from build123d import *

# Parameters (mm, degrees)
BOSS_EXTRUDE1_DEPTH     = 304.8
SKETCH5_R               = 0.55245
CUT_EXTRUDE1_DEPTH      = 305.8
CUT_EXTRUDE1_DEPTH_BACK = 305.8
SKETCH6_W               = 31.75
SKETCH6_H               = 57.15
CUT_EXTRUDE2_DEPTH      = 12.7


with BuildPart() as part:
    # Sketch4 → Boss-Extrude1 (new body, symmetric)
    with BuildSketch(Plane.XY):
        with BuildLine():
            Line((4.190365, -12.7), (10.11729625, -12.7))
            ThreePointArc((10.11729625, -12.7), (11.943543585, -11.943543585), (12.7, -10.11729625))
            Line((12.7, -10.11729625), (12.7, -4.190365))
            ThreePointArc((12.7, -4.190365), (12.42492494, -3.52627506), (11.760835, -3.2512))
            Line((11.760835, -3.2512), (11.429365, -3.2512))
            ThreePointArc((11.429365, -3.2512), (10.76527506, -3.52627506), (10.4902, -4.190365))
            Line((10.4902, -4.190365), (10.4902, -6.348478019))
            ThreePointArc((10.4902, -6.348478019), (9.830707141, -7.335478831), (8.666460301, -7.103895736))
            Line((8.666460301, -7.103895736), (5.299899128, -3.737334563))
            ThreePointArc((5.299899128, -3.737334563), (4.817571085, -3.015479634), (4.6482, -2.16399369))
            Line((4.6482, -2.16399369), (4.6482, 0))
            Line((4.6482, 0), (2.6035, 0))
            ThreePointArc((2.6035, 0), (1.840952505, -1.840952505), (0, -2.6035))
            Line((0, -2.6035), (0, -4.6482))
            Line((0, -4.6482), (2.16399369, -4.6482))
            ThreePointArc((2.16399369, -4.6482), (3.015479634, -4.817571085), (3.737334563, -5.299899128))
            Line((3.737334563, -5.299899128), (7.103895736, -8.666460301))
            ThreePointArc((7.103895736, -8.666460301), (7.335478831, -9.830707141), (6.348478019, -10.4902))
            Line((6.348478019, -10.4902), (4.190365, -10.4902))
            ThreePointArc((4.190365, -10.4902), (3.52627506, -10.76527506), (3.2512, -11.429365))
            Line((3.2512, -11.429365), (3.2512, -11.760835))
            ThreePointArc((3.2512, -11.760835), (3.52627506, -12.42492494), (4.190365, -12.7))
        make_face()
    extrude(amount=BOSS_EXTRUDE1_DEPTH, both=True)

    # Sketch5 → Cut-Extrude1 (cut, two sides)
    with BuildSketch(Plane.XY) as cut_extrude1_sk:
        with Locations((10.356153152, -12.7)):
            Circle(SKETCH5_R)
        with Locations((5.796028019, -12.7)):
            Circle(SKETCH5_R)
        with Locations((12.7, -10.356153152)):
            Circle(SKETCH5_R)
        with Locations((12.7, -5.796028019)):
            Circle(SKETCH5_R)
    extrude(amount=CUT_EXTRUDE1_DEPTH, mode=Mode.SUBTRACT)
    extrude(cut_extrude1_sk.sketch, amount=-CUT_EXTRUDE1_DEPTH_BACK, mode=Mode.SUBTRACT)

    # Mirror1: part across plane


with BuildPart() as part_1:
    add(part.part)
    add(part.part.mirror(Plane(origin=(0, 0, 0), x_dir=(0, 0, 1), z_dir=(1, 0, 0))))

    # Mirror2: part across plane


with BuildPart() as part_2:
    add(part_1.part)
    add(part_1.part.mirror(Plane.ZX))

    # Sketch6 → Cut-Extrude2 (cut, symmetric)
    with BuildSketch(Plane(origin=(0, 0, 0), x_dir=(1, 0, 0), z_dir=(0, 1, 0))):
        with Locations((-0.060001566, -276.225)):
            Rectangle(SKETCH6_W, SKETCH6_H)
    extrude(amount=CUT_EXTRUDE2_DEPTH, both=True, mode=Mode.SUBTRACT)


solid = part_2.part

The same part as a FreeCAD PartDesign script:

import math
import FreeCAD as App
import Part
import Sketcher
Q = App.Units.Quantity


def add_polygon(sketch, points):
    """Adds a closed chain of lines whose ends are joined by coincident constraints."""
    first, n = sketch.GeometryCount, len(points)
    for a, b in zip(points, points[1:] + points[:1]):
        sketch.addGeometry(Part.LineSegment(App.Vector(*a, 0), App.Vector(*b, 0)), False)
    for i in range(n):
        sketch.addConstraint(Sketcher.Constraint("Coincident", first + i, 2, first + (i + 1) % n, 1))

doc = App.newDocument("Part")
params = doc.addObject("Spreadsheet::Sheet", "Params")
for row, (alias, value) in enumerate([
    ("pad1_length", "24 in"),
    ("sketch3_width", "1.25 in"),
    ("sketch3_height", "2.25 in"),
    ("pocket2_length", "1 in"),
], start=1):
    params.set(f"A{row}", alias)
    params.set(f"B{row}", "=" + value)
    params.setAlias(f"B{row}", alias)

body = doc.addObject("PartDesign::Body", "Body")

sketch1 = body.newObject("Sketcher::SketchObject", "Sketch")
sketch1.AttachmentSupport = (doc.getObject("XY_Plane"), [""])
sketch1.MapMode = "FlatFace"
sketch1.addGeometry([
    Part.LineSegment(App.Vector(4.19, -12.7, 0), App.Vector(10.12, -12.7, 0)),
    Part.ArcOfCircle(Part.Circle(App.Vector(10.12, -10.12, 0), App.Vector(0, 0, 1), 2.58), math.radians(-90), math.radians(0)),
    Part.LineSegment(App.Vector(12.7, -10.12, 0), App.Vector(12.7, -4.19, 0)),
    Part.ArcOfCircle(Part.Circle(App.Vector(11.76, -4.19, 0), App.Vector(0, 0, 1), 0.94), math.radians(0), math.radians(90)),
    Part.LineSegment(App.Vector(11.76, -3.25, 0), App.Vector(11.43, -3.25, 0)),
    Part.ArcOfCircle(Part.Circle(App.Vector(11.43, -4.19, 0), App.Vector(0, 0, 1), 0.94), math.radians(90), math.radians(180)),
    Part.LineSegment(App.Vector(10.49, -4.19, 0), App.Vector(10.49, -6.35, 0)),
    Part.ArcOfCircle(Part.Circle(App.Vector(9.42, -6.35, 0), App.Vector(0, 0, 1), 1.07), math.radians(-135), math.radians(0)),
    Part.LineSegment(App.Vector(8.67, -7.1, 0), App.Vector(5.3, -3.74, 0)),
    Part.ArcOfCircle(Part.Circle(App.Vector(6.87, -2.16, 0), App.Vector(0, 0, 1), 2.23), math.radians(-180), math.radians(-135)),
    Part.LineSegment(App.Vector(4.65, -2.16, 0), App.Vector(4.65, 0, 0)),
    Part.LineSegment(App.Vector(4.65, 0, 0), App.Vector(2.6, 0, 0)),
    Part.ArcOfCircle(Part.Circle(App.Vector(0, 0, 0), App.Vector(0, 0, 1), 2.6), math.radians(-90), math.radians(0)),
    Part.LineSegment(App.Vector(0, -2.6, 0), App.Vector(0, -4.65, 0)),
    Part.LineSegment(App.Vector(0, -4.65, 0), App.Vector(2.16, -4.65, 0)),
    Part.ArcOfCircle(Part.Circle(App.Vector(2.16, -6.87, 0), App.Vector(0, 0, 1), 2.23), math.radians(45), math.radians(90)),
    Part.LineSegment(App.Vector(3.74, -5.3, 0), App.Vector(7.1, -8.67, 0)),
    Part.ArcOfCircle(Part.Circle(App.Vector(6.35, -9.42, 0), App.Vector(0, 0, 1), 1.07), math.radians(-90), math.radians(45)),
    Part.LineSegment(App.Vector(6.35, -10.49, 0), App.Vector(4.19, -10.49, 0)),
    Part.ArcOfCircle(Part.Circle(App.Vector(4.19, -11.43, 0), App.Vector(0, 0, 1), 0.94), math.radians(90), math.radians(180)),
    Part.LineSegment(App.Vector(3.25, -11.43, 0), App.Vector(3.25, -11.76, 0)),
    Part.ArcOfCircle(Part.Circle(App.Vector(4.19, -11.76, 0), App.Vector(0, 0, 1), 0.94), math.radians(-180), math.radians(-90)),
], False)
sketch1.addConstraint([
    Sketcher.Constraint("Tangent", 0, 2, 1, 1),
    Sketcher.Constraint("Tangent", 1, 2, 2, 1),
    Sketcher.Constraint("Tangent", 2, 2, 3, 1),
    Sketcher.Constraint("Tangent", 3, 2, 4, 1),
    Sketcher.Constraint("Tangent", 4, 2, 5, 1),
    Sketcher.Constraint("Tangent", 5, 2, 6, 1),
    Sketcher.Constraint("Tangent", 6, 2, 7, 2),
    Sketcher.Constraint("Tangent", 7, 1, 8, 1),
    Sketcher.Constraint("Tangent", 8, 2, 9, 2),
    Sketcher.Constraint("Tangent", 9, 1, 10, 1),
    Sketcher.Constraint("Coincident", 10, 2, 11, 1),
    Sketcher.Constraint("Coincident", 11, 2, 12, 2),
    Sketcher.Constraint("Coincident", 12, 1, 13, 1),
    Sketcher.Constraint("Coincident", 13, 2, 14, 1),
    Sketcher.Constraint("Tangent", 14, 2, 15, 2),
    Sketcher.Constraint("Tangent", 15, 1, 16, 1),
    Sketcher.Constraint("Tangent", 16, 2, 17, 2),
    Sketcher.Constraint("Tangent", 17, 1, 18, 1),
    Sketcher.Constraint("Tangent", 18, 2, 19, 1),
    Sketcher.Constraint("Tangent", 19, 2, 20, 1),
    Sketcher.Constraint("Tangent", 20, 2, 21, 1),
    Sketcher.Constraint("Tangent", 21, 2, 0, 1),
    Sketcher.Constraint("Horizontal", 0),
    Sketcher.Constraint("Vertical", 2),
    Sketcher.Constraint("Horizontal", 4),
    Sketcher.Constraint("Vertical", 6),
    Sketcher.Constraint("Vertical", 10),
    Sketcher.Constraint("Horizontal", 11),
    Sketcher.Constraint("Vertical", 13),
    Sketcher.Constraint("Horizontal", 14),
    Sketcher.Constraint("Horizontal", 18),
    Sketcher.Constraint("Vertical", 20),
    Sketcher.Constraint("Coincident", 12, 3, -1, 1),
    Sketcher.Constraint("Equal", 3, 5),
    Sketcher.Constraint("Equal", 9, 15),
    Sketcher.Constraint("Equal", 7, 17),
    Sketcher.Constraint("Equal", 5, 19),
    Sketcher.Constraint("Equal", 19, 21),
    Sketcher.Constraint("PointOnObject", 10, 2, -1),
    Sketcher.Constraint("PointOnObject", 12, 1, -2),
    Sketcher.Constraint("Parallel", 8, 16),
    Sketcher.Constraint("Equal", 0, 2),
    Sketcher.Constraint("Equal", 18, 6),
    Sketcher.Constraint("Equal", 14, 10),
    Sketcher.Constraint("Equal", 11, 13),
    Sketcher.Constraint("Equal", 4, 20),
    Sketcher.Constraint("Equal", 8, 16),
    Sketcher.Constraint("DistanceY", 0, 2, -1, 1, Q("0.5 in")),
    Sketcher.Constraint("Radius", 9, Q("0.0876 in")),
    Sketcher.Constraint("Radius", 12, Q("0.1025 in")),
    Sketcher.Constraint("DistanceX", 9, 1, 5, 2, Q("0.23 in")),
    Sketcher.Constraint("DistanceX", 11, 2, 11, 1, Q("0.0805 in")),
    Sketcher.Constraint("DistanceY", 3, 2, -1, 1, Q("0.128 in")),
    Sketcher.Constraint("Radius", 7, 1.068322),
    Sketcher.Constraint("DistanceX", 17, 3, 7, 3, Q("0.121 in")),
    Sketcher.Constraint("Radius", 1, 2.582704),
    Sketcher.Constraint("Radius", 3, 0.939165),
])
pad1 = body.newObject("PartDesign::Pad", "Pad")
pad1.Profile = sketch1
pad1.setExpression("Length", "Params.pad1_length")
pad1.Midplane = True

sketch2 = body.newObject("Sketcher::SketchObject", "Sketch001")
sketch2.AttachmentSupport = (doc.getObject("XY_Plane"), [""])
sketch2.MapMode = "FlatFace"
sketch2.addGeometry([
    Part.Circle(App.Vector(10.4, -12.7, 0), App.Vector(0, 0, 1), 0.6),
    Part.Circle(App.Vector(5.8, -12.7, 0), App.Vector(0, 0, 1), 0.6),
    Part.Circle(App.Vector(12.7, -10.4, 0), App.Vector(0, 0, 1), 0.6),
    Part.Circle(App.Vector(12.7, -5.8, 0), App.Vector(0, 0, 1), 0.6),
], False)
sketch2.addConstraint([
    Sketcher.Constraint("Equal", 0, 1),
    Sketcher.Constraint("Equal", 1, 2),
    Sketcher.Constraint("Equal", 2, 3),
    Sketcher.Constraint("Horizontal", 0, 3, 1, 3),
    Sketcher.Constraint("Vertical", 2, 3, 3, 3),
    Sketcher.Constraint("Diameter", 0, Q("0.0435 in")),
    Sketcher.Constraint("DistanceY", 0, 3, -1, 1, Q("0.5 in")),
    Sketcher.Constraint("DistanceX", -1, 1, 2, 3, Q("0.5 in")),
    Sketcher.Constraint("DistanceX", -1, 1, 1, 3, 5.796028),
    Sketcher.Constraint("DistanceY", 3, 3, -1, 1, 5.796028),
    Sketcher.Constraint("DistanceX", -1, 1, 0, 3, 10.356153),
    Sketcher.Constraint("DistanceY", 2, 3, -1, 1, 10.356153),
])
pocket1 = body.newObject("PartDesign::Pocket", "Pocket")
pocket1.Profile = sketch2
pocket1.Type = "ThroughAll"
pocket1.Midplane = True
body2 = doc.addObject("PartDesign::Body", "Body001")
doc.recompute()

body2.BaseFeature = body
doc.recompute()

mirroring = doc.addObject("Part::Mirroring", "Mirroring")
mirroring.Source = body
mirroring.Base = App.Vector(0, 0, 0)
mirroring.Normal = App.Vector(1, 0, 0)
body3 = doc.addObject("PartDesign::Body", "Body002")
body3.BaseFeature = mirroring
boolean = body2.newObject("PartDesign::Boolean", "Boolean")
boolean.Type = "Fuse"
boolean.addObjects([body3])
doc.recompute()
body4 = doc.addObject("PartDesign::Body", "Body003")
doc.recompute()

body4.BaseFeature = body2
doc.recompute()

mirroring2 = doc.addObject("Part::Mirroring", "Mirroring001")
mirroring2.Source = body2
mirroring2.Base = App.Vector(0, 0, 0)
mirroring2.Normal = App.Vector(0, 1, 0)
body5 = doc.addObject("PartDesign::Body", "Body004")
body5.BaseFeature = mirroring2
boolean2 = body4.newObject("PartDesign::Boolean", "Boolean001")
boolean2.Type = "Fuse"
boolean2.addObjects([body5])
doc.recompute()

sketch3 = body4.newObject("Sketcher::SketchObject", "Sketch002")
sketch3.AttachmentSupport = (doc.getObject("XZ_Plane003"), [""])
sketch3.MapMode = "FlatFace"
add_polygon(sketch3, [(-16, 248), (-16, 305), (16, 305), (16, 248)])
sketch3.addConstraint([
    Sketcher.Constraint("Vertical", 0),
    Sketcher.Constraint("Horizontal", 1),
    Sketcher.Constraint("Vertical", 2),
    Sketcher.Constraint("Horizontal", 3),
    Sketcher.Constraint("DistanceY", -1, 1, 0, 2, Q("12 in")),
    Sketcher.Constraint("DistanceX", 1, 1, 1, 2, Q("1.25 in")),
    Sketcher.Constraint("DistanceY", 0, 1, 0, 2, Q("2.25 in")),
    Sketcher.Constraint("DistanceX", 0, 2, -1, 1, 15.935002),
])
sketch3.setExpression("Constraints[9]", "Params.sketch3_width")
sketch3.setExpression("Constraints[10]", "Params.sketch3_height")
pocket2 = body4.newObject("PartDesign::Pocket", "Pocket001")
pocket2.Profile = sketch3
pocket2.setExpression("Length", "Params.pocket2_length")
pocket2.Midplane = True
mirroring.Visibility = False
mirroring2.Visibility = False

doc.recompute()
